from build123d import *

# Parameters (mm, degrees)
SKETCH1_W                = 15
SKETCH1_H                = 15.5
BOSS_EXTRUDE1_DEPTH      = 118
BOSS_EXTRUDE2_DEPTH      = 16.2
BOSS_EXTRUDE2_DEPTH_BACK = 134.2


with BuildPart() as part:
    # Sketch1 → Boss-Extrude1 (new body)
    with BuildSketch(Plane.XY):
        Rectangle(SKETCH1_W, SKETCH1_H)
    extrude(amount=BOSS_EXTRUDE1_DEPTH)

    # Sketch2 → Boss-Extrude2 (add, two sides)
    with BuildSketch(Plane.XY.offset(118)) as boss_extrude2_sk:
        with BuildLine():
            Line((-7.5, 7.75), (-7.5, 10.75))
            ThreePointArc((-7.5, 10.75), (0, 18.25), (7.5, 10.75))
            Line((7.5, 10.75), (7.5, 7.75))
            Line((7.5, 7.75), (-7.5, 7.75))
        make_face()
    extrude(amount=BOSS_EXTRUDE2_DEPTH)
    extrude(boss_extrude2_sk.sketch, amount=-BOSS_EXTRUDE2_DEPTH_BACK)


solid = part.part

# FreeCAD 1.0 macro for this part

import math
import FreeCAD as App
import Part
import Sketcher


def add_polygon(sketch, points):
    """Adds a closed chain of lines whose ends are joined by coincident constraints."""
    first, n = sketch.GeometryCount, len(points)
    for a, b in zip(points, points[1:] + points[:1]):
        sketch.addGeometry(Part.LineSegment(App.Vector(*a, 0), App.Vector(*b, 0)), False)
    for i in range(n):
        sketch.addConstraint(Sketcher.Constraint("Coincident", first + i, 2, first + (i + 1) % n, 1))

doc = App.newDocument("Part")
body = doc.addObject("PartDesign::Body", "Body")

# Sketch on XY plane
sketch1 = body.newObject("Sketcher::SketchObject", "Sketch")
sketch1.AttachmentSupport = (doc.getObject("XY_Plane"), [""])
sketch1.MapMode = "FlatFace"
add_polygon(sketch1, [(-7.5, 7.75), (-7.5, -7.75), (7.5, -7.75), (7.5, 7.75)])  # lines 0-3
sketch1.addConstraint(Sketcher.Constraint("Vertical", 0))
sketch1.addConstraint(Sketcher.Constraint("Horizontal", 1))
sketch1.addConstraint(Sketcher.Constraint("Vertical", 2))
sketch1.addConstraint(Sketcher.Constraint("Horizontal", 3))
sketch1.addConstraint(Sketcher.Constraint("Symmetric", 0, 2, 2, 2, -1, 1))
sketch1.addConstraint(Sketcher.Constraint("DistanceX", 1, 1, 1, 2, 15.0))
sketch1.addConstraint(Sketcher.Constraint("DistanceY", 0, 2, 0, 1, 15.5))
pad1 = body.newObject("PartDesign::Pad", "Pad")
pad1.Profile = sketch1
pad1.Length = 118

# Sketch on XY plane
sketch2 = body.newObject("Sketcher::SketchObject", "Sketch001")
sketch2.AttachmentSupport = (doc.getObject("XY_Plane"), [""])
sketch2.MapMode = "FlatFace"
sketch2.AttachmentOffset = App.Placement(App.Vector(0, 0, 118), App.Rotation())
sketch2.addGeometry(Part.LineSegment(App.Vector(-7.5, 10.75, 0), App.Vector(-7.5, 7.75, 0)), False)
sketch2.addGeometry(Part.LineSegment(App.Vector(-7.5, 7.75, 0), App.Vector(7.5, 7.75, 0)), False)
sketch2.addGeometry(Part.LineSegment(App.Vector(7.5, 7.75, 0), App.Vector(7.5, 10.75, 0)), False)
sketch2.addGeometry(Part.ArcOfCircle(Part.Circle(App.Vector(0, 10.75, 0), App.Vector(0, 0, 1), 7.5), math.radians(0), math.radians(180)), False)
sketch2.addConstraint(Sketcher.Constraint("Coincident", 0, 2, 1, 1))
sketch2.addConstraint(Sketcher.Constraint("Coincident", 1, 2, 2, 1))
sketch2.addConstraint(Sketcher.Constraint("Tangent", 2, 2, 3, 1))
sketch2.addConstraint(Sketcher.Constraint("Tangent", 3, 2, 0, 1))
sketch2.addConstraint(Sketcher.Constraint("Vertical", 0))
sketch2.addConstraint(Sketcher.Constraint("Horizontal", 1))
sketch2.addConstraint(Sketcher.Constraint("Vertical", 2))
sketch2.addConstraint(Sketcher.Constraint("PointOnObject", 3, 3, -2))
sketch2.addConstraint(Sketcher.Constraint("Radius", 3, 7.5))
sketch2.addConstraint(Sketcher.Constraint("DistanceY", 0, 2, 0, 1, 3.0))
sketch2.addConstraint(Sketcher.Constraint("DistanceY", -1, 1, 3, 3, 10.75))
pad2 = body.newObject("PartDesign::Pad", "Pad001")
pad2.Profile = sketch2
pad2.Type = "TwoLengths"
pad2.Length = 16.2
pad2.Length2 = 134.2

doc.recompute()
